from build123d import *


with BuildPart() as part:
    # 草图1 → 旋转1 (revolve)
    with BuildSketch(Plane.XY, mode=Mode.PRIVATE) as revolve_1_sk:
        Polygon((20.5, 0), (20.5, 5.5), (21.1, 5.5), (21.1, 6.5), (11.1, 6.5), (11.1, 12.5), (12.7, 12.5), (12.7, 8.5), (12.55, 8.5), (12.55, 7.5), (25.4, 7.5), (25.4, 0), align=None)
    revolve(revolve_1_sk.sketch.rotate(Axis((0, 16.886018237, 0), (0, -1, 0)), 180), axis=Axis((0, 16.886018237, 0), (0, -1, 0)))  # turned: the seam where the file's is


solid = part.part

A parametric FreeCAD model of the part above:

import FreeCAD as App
import Part
import Sketcher

doc = App.newDocument("Part")
params = doc.addObject("Spreadsheet::Sheet", "Params")
for row, (alias, value) in enumerate([
    ("sketch1_width", "10 mm"),
    ("sketch1_height", "1 mm"),
    ("sketch1_height2", "4 mm"),
    ("sketch1_height3", "6 mm"),
    ("sketch1_width2", "4.9 mm"),
    ("revolution_angle", "360 deg"),
], start=1):
    params.set(f"A{row}", alias)
    params.set(f"B{row}", "=" + value)
    params.setAlias(f"B{row}", alias)

body = doc.addObject("PartDesign::Body", "Body")

# Sketch on XY plane
sketch1 = body.newObject("Sketcher::SketchObject", "Sketch")
sketch1.AttachmentSupport = (doc.getObject("XY_Plane"), [""])
sketch1.MapMode = "FlatFace"
sketch1.addGeometry(Part.LineSegment(App.Vector(20.5, 5.5, 0), App.Vector(20.5, 0, 0)), False)
sketch1.addGeometry(Part.LineSegment(App.Vector(20.5, 0, 0), App.Vector(25.4, 0, 0)), False)
sketch1.addGeometry(Part.LineSegment(App.Vector(25.4, 0, 0), App.Vector(25.4, 7.5, 0)), False)
sketch1.addGeometry(Part.LineSegment(App.Vector(25.4, 7.5, 0), App.Vector(12.55, 7.5, 0)), False)
sketch1.addGeometry(Part.LineSegment(App.Vector(12.55, 7.5, 0), App.Vector(12.55, 8.5, 0)), False)
sketch1.addGeometry(Part.LineSegment(App.Vector(12.55, 8.5, 0), App.Vector(12.7, 8.5, 0)), False)
sketch1.addGeometry(Part.LineSegment(App.Vector(12.7, 8.5, 0), App.Vector(12.7, 12.5, 0)), False)
sketch1.addGeometry(Part.LineSegment(App.Vector(12.7, 12.5, 0), App.Vector(11.1, 12.5, 0)), False)
sketch1.addGeometry(Part.LineSegment(App.Vector(11.1, 12.5, 0), App.Vector(11.1, 6.5, 0)), False)
sketch1.addGeometry(Part.LineSegment(App.Vector(11.1, 6.5, 0), App.Vector(21.1, 6.5, 0)), False)
sketch1.addGeometry(Part.LineSegment(App.Vector(21.1, 6.5, 0), App.Vector(21.1, 5.5, 0)), False)
sketch1.addGeometry(Part.LineSegment(App.Vector(21.1, 5.5, 0), App.Vector(20.5, 5.5, 0)), False)
sketch1.addConstraint(Sketcher.Constraint("Coincident", 0, 2, 1, 1))
sketch1.addConstraint(Sketcher.Constraint("Coincident", 1, 2, 2, 1))
sketch1.addConstraint(Sketcher.Constraint("Coincident", 2, 2, 3, 1))
sketch1.addConstraint(Sketcher.Constraint("Coincident", 3, 2, 4, 1))
sketch1.addConstraint(Sketcher.Constraint("Coincident", 4, 2, 5, 1))
sketch1.addConstraint(Sketcher.Constraint("Coincident", 5, 2, 6, 1))
sketch1.addConstraint(Sketcher.Constraint("Coincident", 6, 2, 7, 1))
sketch1.addConstraint(Sketcher.Constraint("Coincident", 7, 2, 8, 1))
sketch1.addConstraint(Sketcher.Constraint("Coincident", 8, 2, 9, 1))
sketch1.addConstraint(Sketcher.Constraint("Coincident", 9, 2, 10, 1))
sketch1.addConstraint(Sketcher.Constraint("Coincident", 10, 2, 11, 1))
sketch1.addConstraint(Sketcher.Constraint("Coincident", 11, 2, 0, 1))
sketch1.addConstraint(Sketcher.Constraint("Vertical", 0))
sketch1.addConstraint(Sketcher.Constraint("Horizontal", 1))
sketch1.addConstraint(Sketcher.Constraint("Vertical", 2))
sketch1.addConstraint(Sketcher.Constraint("Horizontal", 3))
sketch1.addConstraint(Sketcher.Constraint("Vertical", 4))
sketch1.addConstraint(Sketcher.Constraint("Horizontal", 5))
sketch1.addConstraint(Sketcher.Constraint("Vertical", 6))
sketch1.addConstraint(Sketcher.Constraint("Horizontal", 7))
sketch1.addConstraint(Sketcher.Constraint("Vertical", 8))
sketch1.addConstraint(Sketcher.Constraint("Horizontal", 9))
sketch1.addConstraint(Sketcher.Constraint("Vertical", 10))
sketch1.addConstraint(Sketcher.Constraint("Horizontal", 11))
sketch1.addConstraint(Sketcher.Constraint("PointOnObject", 0, 2, -1))
sketch1.addConstraint(Sketcher.Constraint("Equal", 4, 10))
sketch1.addConstraint(Sketcher.Constraint("DistanceX", 9, 1, 9, 2, 10.0))
sketch1.addConstraint(Sketcher.Constraint("DistanceY", 4, 1, 4, 2, 1.0))
sketch1.addConstraint(Sketcher.Constraint("DistanceY", 6, 1, 6, 2, 4.0))
sketch1.addConstraint(Sketcher.Constraint("DistanceY", 8, 2, 8, 1, 6.0))
sketch1.addConstraint(Sketcher.Constraint("DistanceX", 1, 1, 1, 2, 4.9))
sketch1.addConstraint(Sketcher.Constraint("DistanceX", 7, 2, 7, 1, 1.6))
sketch1.addConstraint(Sketcher.Constraint("DistanceX", 11, 2, 11, 1, 0.6))
sketch1.addConstraint(Sketcher.Constraint("DistanceY", 0, 2, 0, 1, 5.5))
sketch1.addConstraint(Sketcher.Constraint("DistanceX", 3, 2, 3, 1, 12.85))
sketch1.addConstraint(Sketcher.Constraint("DistanceX", -1, 1, 0, 2, 20.5))
sketch1.setExpression("Constraints[26]", "Params.sketch1_width")
sketch1.setExpression("Constraints[27]", "Params.sketch1_height")
sketch1.setExpression("Constraints[28]", "Params.sketch1_height2")
sketch1.setExpression("Constraints[29]", "Params.sketch1_height3")
sketch1.setExpression("Constraints[30]", "Params.sketch1_width2")
revolution = body.newObject("PartDesign::Revolution", "Revolution")
revolution.Profile = sketch1
revolution.ReferenceAxis = (sketch1, ["V_Axis"])
revolution.setExpression("Angle", "Params.revolution_angle")

doc.recompute()
